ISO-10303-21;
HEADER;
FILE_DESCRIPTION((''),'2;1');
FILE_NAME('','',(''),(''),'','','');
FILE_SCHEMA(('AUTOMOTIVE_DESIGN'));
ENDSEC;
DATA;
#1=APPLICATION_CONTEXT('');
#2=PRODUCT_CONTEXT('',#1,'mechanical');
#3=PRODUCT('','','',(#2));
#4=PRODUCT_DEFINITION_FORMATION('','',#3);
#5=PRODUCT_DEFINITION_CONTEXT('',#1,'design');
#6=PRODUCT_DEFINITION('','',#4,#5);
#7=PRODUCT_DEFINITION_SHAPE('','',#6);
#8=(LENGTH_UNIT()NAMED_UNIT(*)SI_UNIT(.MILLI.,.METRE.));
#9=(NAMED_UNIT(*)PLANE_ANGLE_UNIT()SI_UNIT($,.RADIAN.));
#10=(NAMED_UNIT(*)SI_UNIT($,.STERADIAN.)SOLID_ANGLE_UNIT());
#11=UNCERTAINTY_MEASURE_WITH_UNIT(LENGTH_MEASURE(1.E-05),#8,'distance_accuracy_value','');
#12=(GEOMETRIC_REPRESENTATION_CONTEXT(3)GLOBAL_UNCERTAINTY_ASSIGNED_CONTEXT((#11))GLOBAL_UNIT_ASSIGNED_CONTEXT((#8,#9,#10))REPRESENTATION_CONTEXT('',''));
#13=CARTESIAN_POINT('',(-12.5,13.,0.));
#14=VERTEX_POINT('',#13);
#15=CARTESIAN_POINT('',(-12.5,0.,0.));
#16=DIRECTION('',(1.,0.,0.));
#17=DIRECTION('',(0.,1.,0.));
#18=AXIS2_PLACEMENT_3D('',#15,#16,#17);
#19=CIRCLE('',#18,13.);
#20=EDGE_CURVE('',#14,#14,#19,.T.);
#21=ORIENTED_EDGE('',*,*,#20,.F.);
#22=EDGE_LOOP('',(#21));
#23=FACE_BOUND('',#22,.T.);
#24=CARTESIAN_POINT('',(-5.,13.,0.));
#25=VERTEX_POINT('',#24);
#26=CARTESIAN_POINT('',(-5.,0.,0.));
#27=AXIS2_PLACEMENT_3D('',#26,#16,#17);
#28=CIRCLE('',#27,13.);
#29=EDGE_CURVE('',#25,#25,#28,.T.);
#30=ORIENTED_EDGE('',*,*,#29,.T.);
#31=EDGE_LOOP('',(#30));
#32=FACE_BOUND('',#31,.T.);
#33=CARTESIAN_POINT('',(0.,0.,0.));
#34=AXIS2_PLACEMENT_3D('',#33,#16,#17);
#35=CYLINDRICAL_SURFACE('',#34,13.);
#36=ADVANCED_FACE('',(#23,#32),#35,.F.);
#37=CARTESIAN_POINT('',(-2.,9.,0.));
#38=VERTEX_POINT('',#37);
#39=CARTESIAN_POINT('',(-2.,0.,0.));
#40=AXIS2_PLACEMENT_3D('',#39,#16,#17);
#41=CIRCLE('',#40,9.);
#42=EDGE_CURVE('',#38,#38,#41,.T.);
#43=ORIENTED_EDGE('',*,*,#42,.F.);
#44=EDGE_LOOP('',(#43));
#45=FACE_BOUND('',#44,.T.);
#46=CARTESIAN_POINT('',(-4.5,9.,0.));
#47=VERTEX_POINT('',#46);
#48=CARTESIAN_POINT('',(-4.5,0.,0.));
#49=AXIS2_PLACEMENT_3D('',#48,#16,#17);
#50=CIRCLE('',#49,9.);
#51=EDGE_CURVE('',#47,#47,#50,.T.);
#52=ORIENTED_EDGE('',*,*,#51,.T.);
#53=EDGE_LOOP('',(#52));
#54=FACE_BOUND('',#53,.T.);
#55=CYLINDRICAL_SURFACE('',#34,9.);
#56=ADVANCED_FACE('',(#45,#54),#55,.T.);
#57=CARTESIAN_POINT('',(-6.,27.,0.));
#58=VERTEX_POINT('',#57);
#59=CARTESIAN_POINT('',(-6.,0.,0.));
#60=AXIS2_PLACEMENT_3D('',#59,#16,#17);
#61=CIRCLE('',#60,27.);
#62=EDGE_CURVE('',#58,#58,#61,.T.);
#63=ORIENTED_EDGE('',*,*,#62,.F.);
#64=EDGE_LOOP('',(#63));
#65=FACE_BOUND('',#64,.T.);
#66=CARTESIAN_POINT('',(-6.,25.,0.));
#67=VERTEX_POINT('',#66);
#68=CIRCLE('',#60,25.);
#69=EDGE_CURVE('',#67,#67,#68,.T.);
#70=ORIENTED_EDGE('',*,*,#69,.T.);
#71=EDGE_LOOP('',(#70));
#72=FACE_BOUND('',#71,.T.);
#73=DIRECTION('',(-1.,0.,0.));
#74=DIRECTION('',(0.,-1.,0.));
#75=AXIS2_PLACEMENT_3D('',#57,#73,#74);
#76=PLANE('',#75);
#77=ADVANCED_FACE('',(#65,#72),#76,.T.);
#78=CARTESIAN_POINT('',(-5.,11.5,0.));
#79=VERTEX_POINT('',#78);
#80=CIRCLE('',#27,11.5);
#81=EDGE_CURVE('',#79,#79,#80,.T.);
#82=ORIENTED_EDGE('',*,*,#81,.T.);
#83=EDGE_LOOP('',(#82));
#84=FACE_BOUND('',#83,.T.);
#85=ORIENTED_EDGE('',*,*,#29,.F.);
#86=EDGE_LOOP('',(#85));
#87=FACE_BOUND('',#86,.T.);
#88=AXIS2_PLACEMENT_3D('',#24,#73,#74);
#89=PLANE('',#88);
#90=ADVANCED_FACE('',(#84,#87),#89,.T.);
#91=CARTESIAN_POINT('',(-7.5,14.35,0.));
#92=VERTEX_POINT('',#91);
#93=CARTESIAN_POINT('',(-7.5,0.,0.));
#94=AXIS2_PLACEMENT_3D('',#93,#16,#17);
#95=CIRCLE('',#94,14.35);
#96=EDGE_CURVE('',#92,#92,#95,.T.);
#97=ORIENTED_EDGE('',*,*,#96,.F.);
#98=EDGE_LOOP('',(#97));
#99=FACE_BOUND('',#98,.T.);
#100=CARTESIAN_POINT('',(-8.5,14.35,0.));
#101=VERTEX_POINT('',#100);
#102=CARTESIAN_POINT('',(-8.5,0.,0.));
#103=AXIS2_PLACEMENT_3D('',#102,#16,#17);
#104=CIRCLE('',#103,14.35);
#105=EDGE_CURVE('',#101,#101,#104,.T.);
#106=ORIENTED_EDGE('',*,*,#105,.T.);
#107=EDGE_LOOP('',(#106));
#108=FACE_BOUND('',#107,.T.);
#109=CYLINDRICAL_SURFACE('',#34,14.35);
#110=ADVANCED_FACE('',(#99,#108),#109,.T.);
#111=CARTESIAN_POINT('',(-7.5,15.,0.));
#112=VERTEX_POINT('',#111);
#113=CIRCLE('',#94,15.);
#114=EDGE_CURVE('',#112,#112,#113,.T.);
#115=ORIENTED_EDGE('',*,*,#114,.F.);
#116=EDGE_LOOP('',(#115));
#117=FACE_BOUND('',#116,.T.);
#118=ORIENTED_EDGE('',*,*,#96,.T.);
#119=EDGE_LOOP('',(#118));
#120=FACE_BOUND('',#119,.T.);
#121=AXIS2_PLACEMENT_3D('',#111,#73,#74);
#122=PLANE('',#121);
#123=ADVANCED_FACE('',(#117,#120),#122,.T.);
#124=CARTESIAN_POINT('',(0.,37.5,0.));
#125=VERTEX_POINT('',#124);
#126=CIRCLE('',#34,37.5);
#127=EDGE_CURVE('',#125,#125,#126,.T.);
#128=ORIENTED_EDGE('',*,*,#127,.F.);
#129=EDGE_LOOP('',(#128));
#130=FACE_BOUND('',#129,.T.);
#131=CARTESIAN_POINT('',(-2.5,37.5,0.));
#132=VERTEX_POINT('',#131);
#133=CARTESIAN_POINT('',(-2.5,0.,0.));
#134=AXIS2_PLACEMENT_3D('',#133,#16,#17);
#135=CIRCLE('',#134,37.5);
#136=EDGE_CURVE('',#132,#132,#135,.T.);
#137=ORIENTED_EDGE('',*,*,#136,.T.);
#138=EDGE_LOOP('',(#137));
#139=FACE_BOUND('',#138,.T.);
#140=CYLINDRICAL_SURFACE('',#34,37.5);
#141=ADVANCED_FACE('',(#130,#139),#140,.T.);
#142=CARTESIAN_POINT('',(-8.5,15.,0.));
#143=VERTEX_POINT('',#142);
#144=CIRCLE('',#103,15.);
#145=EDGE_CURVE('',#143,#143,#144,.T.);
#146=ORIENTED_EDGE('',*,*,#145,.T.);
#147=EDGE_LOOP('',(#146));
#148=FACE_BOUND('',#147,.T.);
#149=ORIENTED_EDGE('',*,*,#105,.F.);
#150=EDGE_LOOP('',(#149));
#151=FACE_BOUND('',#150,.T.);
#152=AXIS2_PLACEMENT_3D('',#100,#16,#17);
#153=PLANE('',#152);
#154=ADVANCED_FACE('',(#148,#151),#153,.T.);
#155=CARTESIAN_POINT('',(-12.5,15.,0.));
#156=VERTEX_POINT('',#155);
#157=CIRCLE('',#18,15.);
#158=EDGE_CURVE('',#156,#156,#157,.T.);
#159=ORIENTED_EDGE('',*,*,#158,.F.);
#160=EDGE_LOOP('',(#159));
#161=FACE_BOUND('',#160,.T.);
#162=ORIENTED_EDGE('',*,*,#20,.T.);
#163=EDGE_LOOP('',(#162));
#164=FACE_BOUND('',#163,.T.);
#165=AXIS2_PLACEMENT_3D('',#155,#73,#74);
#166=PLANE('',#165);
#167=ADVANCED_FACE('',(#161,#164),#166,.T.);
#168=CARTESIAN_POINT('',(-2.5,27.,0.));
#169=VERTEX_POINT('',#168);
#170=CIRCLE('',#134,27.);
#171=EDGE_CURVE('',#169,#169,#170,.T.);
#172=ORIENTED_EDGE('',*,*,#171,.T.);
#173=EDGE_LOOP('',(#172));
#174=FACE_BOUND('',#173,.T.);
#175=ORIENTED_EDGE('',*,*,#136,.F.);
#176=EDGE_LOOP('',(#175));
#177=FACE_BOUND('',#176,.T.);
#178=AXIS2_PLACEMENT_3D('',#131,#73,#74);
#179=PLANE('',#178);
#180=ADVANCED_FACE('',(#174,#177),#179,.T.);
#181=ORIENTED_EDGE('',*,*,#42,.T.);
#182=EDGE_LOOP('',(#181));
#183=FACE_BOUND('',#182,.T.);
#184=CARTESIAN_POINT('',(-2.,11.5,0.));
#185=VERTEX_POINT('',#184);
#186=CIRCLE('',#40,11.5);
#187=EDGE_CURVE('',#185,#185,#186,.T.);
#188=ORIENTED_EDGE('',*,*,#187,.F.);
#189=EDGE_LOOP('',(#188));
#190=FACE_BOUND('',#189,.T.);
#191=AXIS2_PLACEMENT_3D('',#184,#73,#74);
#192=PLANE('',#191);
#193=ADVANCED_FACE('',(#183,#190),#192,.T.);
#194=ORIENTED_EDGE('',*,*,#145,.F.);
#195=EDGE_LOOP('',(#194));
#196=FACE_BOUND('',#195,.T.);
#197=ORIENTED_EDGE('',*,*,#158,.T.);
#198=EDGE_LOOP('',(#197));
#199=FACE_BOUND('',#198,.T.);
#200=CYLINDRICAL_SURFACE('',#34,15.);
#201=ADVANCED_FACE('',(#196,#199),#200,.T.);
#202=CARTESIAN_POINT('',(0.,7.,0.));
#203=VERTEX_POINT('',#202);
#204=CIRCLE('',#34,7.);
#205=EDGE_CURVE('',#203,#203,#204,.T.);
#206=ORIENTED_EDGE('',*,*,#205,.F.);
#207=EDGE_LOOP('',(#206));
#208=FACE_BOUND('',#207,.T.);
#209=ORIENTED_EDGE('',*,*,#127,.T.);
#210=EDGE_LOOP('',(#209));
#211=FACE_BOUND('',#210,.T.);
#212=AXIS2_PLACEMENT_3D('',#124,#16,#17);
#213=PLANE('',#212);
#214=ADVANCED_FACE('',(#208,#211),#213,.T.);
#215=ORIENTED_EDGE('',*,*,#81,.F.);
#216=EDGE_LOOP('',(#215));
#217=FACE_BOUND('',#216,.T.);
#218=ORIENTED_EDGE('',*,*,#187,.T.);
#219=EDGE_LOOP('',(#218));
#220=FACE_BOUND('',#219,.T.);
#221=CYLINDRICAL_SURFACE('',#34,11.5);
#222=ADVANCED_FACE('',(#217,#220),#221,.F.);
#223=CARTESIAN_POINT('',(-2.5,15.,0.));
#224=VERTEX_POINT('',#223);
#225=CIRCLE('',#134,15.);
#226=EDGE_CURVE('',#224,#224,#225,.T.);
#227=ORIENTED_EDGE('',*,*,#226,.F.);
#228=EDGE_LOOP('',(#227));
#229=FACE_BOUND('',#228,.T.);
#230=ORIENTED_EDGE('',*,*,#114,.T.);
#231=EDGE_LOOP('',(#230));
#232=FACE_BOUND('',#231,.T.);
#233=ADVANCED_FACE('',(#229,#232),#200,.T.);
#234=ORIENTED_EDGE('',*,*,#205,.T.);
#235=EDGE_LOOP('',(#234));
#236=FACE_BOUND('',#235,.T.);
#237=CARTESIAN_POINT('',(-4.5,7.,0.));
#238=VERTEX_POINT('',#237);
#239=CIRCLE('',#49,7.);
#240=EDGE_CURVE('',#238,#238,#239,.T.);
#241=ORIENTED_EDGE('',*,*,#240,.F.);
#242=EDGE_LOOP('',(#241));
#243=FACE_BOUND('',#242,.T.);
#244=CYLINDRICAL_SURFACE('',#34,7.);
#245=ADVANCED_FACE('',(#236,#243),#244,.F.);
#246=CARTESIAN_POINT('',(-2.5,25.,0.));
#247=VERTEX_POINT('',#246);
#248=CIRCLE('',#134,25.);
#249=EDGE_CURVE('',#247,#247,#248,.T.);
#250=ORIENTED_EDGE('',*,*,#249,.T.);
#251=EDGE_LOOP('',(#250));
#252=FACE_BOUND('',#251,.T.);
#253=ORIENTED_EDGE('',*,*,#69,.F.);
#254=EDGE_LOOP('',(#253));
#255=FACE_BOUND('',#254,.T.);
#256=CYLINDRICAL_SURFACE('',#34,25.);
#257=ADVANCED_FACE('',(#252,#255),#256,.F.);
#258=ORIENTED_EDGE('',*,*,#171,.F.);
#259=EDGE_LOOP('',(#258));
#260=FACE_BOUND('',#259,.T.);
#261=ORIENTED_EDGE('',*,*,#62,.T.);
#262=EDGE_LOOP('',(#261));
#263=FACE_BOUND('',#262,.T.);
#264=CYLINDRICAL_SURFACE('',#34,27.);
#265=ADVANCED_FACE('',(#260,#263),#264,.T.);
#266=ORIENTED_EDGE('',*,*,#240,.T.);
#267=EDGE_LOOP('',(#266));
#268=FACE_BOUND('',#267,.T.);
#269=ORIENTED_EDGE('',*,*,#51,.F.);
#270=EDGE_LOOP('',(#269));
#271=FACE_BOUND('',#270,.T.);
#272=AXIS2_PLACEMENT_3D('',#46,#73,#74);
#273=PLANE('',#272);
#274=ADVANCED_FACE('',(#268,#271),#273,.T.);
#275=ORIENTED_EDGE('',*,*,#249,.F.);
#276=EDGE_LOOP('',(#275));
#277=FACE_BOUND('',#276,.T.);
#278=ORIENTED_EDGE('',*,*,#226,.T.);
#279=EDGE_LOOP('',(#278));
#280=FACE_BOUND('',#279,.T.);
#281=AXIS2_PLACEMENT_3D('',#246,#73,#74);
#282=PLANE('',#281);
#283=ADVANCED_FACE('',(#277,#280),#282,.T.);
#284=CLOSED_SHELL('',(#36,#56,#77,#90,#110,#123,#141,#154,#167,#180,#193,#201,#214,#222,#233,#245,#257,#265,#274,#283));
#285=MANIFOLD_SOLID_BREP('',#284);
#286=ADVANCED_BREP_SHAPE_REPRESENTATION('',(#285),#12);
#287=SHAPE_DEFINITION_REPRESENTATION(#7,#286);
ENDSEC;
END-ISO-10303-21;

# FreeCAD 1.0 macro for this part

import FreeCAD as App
import Part
import Sketcher

V = App.Vector


def add_polygon(sketch, points):
    """Adds a closed chain of lines whose ends are joined by coincident constraints."""
    first, n = sketch.GeometryCount, len(points)
    for a, b in zip(points, points[1:] + points[:1]):
        sketch.addGeometry(Part.LineSegment(App.Vector(*a, 0), App.Vector(*b, 0)), False)
    for i in range(n):
        sketch.addConstraint(Sketcher.Constraint("Coincident", first + i, 2, first + (i + 1) % n, 1))

doc = App.newDocument("Part")
body = doc.addObject("PartDesign::Body", "Body")

sketch1 = body.newObject("Sketcher::SketchObject", "Sketch")
sketch1.AttachmentSupport = (doc.getObject("XY_Plane"), [""])
sketch1.MapMode = "FlatFace"
add_polygon(sketch1, [(0, 7), (0, 37.5), (-2.5, 37.5), (-2.5, 27), (-6, 27), (-6, 25), (-2.5, 25), (-2.5, 15), (-7.5, 15), (-7.5, 14.3), (-8.5, 14.3), (-8.5, 15), (-12.5, 15), (-12.5, 13), (-5, 13), (-5, 11.5), (-2, 11.5), (-2, 9), (-4.5, 9), (-4.5, 7)])
sketch1.addConstraint(Sketcher.Constraint("Vertical", 0))
sketch1.addConstraint(Sketcher.Constraint("Horizontal", 1))
sketch1.addConstraint(Sketcher.Constraint("Vertical", 2))
sketch1.addConstraint(Sketcher.Constraint("Horizontal", 3))
sketch1.addConstraint(Sketcher.Constraint("Vertical", 4))
sketch1.addConstraint(Sketcher.Constraint("Horizontal", 5))
sketch1.addConstraint(Sketcher.Constraint("Vertical", 6))
sketch1.addConstraint(Sketcher.Constraint("Horizontal", 7))
sketch1.addConstraint(Sketcher.Constraint("Vertical", 8))
sketch1.addConstraint(Sketcher.Constraint("Horizontal", 9))
sketch1.addConstraint(Sketcher.Constraint("Vertical", 10))
sketch1.addConstraint(Sketcher.Constraint("Horizontal", 11))
sketch1.addConstraint(Sketcher.Constraint("Vertical", 12))
sketch1.addConstraint(Sketcher.Constraint("Horizontal", 13))
sketch1.addConstraint(Sketcher.Constraint("Vertical", 14))
sketch1.addConstraint(Sketcher.Constraint("Horizontal", 15))
sketch1.addConstraint(Sketcher.Constraint("Vertical", 16))
sketch1.addConstraint(Sketcher.Constraint("Horizontal", 17))
sketch1.addConstraint(Sketcher.Constraint("Vertical", 18))
sketch1.addConstraint(Sketcher.Constraint("Horizontal", 19))
sketch1.addConstraint(Sketcher.Constraint("PointOnObject", 0, 2, -2))
sketch1.addConstraint(Sketcher.Constraint("Horizontal", 7, 2, 10, 2))
sketch1.addConstraint(Sketcher.Constraint("Vertical", 2, 2, 5, 2))
sketch1.addConstraint(Sketcher.Constraint("Equal", 1, 17))
sketch1.addConstraint(Sketcher.Constraint("Equal", 4, 12))
sketch1.addConstraint(Sketcher.Constraint("Equal", 17, 16))
sketch1.addConstraint(Sketcher.Constraint("Equal", 12, 18))
sketch1.addConstraint(Sketcher.Constraint("DistanceX", 7, 2, 7, 1, 5.0))
sketch1.addConstraint(Sketcher.Constraint("DistanceX", 9, 2, 9, 1, 1.0))
sketch1.addConstraint(Sketcher.Constraint("DistanceX", 11, 2, 11, 1, 4.0))
sketch1.addConstraint(Sketcher.Constraint("DistanceX", 15, 1, 15, 2, 3.0))
sketch1.addConstraint(Sketcher.Constraint("DistanceY", 4, 2, 4, 1, 2.0))
sketch1.addConstraint(Sketcher.Constraint("DistanceY", 6, 2, 6, 1, 10.0))
sketch1.addConstraint(Sketcher.Constraint("DistanceX", 1, 2, 1, 1, 2.5))
sketch1.addConstraint(Sketcher.Constraint("DistanceX", 3, 2, 3, 1, 3.5))
sketch1.addConstraint(Sketcher.Constraint("DistanceX", 13, 1, 13, 2, 7.5))
sketch1.addConstraint(Sketcher.Constraint("DistanceY", 0, 1, 0, 2, 30.5))
sketch1.addConstraint(Sketcher.Constraint("DistanceY", 2, 2, 2, 1, 10.5))
sketch1.addConstraint(Sketcher.Constraint("DistanceY", -1, 1, 2, 2, 27.0))
sketch1.addConstraint(Sketcher.Constraint("DistanceY", 8, 2, 8, 1, 0.65))
revolution = body.newObject("PartDesign::Revolution", "Revolution")
revolution.Profile = sketch1
revolution.ReferenceAxis = (sketch1, ["H_Axis"])
revolution.Angle = 360

doc.recompute()
